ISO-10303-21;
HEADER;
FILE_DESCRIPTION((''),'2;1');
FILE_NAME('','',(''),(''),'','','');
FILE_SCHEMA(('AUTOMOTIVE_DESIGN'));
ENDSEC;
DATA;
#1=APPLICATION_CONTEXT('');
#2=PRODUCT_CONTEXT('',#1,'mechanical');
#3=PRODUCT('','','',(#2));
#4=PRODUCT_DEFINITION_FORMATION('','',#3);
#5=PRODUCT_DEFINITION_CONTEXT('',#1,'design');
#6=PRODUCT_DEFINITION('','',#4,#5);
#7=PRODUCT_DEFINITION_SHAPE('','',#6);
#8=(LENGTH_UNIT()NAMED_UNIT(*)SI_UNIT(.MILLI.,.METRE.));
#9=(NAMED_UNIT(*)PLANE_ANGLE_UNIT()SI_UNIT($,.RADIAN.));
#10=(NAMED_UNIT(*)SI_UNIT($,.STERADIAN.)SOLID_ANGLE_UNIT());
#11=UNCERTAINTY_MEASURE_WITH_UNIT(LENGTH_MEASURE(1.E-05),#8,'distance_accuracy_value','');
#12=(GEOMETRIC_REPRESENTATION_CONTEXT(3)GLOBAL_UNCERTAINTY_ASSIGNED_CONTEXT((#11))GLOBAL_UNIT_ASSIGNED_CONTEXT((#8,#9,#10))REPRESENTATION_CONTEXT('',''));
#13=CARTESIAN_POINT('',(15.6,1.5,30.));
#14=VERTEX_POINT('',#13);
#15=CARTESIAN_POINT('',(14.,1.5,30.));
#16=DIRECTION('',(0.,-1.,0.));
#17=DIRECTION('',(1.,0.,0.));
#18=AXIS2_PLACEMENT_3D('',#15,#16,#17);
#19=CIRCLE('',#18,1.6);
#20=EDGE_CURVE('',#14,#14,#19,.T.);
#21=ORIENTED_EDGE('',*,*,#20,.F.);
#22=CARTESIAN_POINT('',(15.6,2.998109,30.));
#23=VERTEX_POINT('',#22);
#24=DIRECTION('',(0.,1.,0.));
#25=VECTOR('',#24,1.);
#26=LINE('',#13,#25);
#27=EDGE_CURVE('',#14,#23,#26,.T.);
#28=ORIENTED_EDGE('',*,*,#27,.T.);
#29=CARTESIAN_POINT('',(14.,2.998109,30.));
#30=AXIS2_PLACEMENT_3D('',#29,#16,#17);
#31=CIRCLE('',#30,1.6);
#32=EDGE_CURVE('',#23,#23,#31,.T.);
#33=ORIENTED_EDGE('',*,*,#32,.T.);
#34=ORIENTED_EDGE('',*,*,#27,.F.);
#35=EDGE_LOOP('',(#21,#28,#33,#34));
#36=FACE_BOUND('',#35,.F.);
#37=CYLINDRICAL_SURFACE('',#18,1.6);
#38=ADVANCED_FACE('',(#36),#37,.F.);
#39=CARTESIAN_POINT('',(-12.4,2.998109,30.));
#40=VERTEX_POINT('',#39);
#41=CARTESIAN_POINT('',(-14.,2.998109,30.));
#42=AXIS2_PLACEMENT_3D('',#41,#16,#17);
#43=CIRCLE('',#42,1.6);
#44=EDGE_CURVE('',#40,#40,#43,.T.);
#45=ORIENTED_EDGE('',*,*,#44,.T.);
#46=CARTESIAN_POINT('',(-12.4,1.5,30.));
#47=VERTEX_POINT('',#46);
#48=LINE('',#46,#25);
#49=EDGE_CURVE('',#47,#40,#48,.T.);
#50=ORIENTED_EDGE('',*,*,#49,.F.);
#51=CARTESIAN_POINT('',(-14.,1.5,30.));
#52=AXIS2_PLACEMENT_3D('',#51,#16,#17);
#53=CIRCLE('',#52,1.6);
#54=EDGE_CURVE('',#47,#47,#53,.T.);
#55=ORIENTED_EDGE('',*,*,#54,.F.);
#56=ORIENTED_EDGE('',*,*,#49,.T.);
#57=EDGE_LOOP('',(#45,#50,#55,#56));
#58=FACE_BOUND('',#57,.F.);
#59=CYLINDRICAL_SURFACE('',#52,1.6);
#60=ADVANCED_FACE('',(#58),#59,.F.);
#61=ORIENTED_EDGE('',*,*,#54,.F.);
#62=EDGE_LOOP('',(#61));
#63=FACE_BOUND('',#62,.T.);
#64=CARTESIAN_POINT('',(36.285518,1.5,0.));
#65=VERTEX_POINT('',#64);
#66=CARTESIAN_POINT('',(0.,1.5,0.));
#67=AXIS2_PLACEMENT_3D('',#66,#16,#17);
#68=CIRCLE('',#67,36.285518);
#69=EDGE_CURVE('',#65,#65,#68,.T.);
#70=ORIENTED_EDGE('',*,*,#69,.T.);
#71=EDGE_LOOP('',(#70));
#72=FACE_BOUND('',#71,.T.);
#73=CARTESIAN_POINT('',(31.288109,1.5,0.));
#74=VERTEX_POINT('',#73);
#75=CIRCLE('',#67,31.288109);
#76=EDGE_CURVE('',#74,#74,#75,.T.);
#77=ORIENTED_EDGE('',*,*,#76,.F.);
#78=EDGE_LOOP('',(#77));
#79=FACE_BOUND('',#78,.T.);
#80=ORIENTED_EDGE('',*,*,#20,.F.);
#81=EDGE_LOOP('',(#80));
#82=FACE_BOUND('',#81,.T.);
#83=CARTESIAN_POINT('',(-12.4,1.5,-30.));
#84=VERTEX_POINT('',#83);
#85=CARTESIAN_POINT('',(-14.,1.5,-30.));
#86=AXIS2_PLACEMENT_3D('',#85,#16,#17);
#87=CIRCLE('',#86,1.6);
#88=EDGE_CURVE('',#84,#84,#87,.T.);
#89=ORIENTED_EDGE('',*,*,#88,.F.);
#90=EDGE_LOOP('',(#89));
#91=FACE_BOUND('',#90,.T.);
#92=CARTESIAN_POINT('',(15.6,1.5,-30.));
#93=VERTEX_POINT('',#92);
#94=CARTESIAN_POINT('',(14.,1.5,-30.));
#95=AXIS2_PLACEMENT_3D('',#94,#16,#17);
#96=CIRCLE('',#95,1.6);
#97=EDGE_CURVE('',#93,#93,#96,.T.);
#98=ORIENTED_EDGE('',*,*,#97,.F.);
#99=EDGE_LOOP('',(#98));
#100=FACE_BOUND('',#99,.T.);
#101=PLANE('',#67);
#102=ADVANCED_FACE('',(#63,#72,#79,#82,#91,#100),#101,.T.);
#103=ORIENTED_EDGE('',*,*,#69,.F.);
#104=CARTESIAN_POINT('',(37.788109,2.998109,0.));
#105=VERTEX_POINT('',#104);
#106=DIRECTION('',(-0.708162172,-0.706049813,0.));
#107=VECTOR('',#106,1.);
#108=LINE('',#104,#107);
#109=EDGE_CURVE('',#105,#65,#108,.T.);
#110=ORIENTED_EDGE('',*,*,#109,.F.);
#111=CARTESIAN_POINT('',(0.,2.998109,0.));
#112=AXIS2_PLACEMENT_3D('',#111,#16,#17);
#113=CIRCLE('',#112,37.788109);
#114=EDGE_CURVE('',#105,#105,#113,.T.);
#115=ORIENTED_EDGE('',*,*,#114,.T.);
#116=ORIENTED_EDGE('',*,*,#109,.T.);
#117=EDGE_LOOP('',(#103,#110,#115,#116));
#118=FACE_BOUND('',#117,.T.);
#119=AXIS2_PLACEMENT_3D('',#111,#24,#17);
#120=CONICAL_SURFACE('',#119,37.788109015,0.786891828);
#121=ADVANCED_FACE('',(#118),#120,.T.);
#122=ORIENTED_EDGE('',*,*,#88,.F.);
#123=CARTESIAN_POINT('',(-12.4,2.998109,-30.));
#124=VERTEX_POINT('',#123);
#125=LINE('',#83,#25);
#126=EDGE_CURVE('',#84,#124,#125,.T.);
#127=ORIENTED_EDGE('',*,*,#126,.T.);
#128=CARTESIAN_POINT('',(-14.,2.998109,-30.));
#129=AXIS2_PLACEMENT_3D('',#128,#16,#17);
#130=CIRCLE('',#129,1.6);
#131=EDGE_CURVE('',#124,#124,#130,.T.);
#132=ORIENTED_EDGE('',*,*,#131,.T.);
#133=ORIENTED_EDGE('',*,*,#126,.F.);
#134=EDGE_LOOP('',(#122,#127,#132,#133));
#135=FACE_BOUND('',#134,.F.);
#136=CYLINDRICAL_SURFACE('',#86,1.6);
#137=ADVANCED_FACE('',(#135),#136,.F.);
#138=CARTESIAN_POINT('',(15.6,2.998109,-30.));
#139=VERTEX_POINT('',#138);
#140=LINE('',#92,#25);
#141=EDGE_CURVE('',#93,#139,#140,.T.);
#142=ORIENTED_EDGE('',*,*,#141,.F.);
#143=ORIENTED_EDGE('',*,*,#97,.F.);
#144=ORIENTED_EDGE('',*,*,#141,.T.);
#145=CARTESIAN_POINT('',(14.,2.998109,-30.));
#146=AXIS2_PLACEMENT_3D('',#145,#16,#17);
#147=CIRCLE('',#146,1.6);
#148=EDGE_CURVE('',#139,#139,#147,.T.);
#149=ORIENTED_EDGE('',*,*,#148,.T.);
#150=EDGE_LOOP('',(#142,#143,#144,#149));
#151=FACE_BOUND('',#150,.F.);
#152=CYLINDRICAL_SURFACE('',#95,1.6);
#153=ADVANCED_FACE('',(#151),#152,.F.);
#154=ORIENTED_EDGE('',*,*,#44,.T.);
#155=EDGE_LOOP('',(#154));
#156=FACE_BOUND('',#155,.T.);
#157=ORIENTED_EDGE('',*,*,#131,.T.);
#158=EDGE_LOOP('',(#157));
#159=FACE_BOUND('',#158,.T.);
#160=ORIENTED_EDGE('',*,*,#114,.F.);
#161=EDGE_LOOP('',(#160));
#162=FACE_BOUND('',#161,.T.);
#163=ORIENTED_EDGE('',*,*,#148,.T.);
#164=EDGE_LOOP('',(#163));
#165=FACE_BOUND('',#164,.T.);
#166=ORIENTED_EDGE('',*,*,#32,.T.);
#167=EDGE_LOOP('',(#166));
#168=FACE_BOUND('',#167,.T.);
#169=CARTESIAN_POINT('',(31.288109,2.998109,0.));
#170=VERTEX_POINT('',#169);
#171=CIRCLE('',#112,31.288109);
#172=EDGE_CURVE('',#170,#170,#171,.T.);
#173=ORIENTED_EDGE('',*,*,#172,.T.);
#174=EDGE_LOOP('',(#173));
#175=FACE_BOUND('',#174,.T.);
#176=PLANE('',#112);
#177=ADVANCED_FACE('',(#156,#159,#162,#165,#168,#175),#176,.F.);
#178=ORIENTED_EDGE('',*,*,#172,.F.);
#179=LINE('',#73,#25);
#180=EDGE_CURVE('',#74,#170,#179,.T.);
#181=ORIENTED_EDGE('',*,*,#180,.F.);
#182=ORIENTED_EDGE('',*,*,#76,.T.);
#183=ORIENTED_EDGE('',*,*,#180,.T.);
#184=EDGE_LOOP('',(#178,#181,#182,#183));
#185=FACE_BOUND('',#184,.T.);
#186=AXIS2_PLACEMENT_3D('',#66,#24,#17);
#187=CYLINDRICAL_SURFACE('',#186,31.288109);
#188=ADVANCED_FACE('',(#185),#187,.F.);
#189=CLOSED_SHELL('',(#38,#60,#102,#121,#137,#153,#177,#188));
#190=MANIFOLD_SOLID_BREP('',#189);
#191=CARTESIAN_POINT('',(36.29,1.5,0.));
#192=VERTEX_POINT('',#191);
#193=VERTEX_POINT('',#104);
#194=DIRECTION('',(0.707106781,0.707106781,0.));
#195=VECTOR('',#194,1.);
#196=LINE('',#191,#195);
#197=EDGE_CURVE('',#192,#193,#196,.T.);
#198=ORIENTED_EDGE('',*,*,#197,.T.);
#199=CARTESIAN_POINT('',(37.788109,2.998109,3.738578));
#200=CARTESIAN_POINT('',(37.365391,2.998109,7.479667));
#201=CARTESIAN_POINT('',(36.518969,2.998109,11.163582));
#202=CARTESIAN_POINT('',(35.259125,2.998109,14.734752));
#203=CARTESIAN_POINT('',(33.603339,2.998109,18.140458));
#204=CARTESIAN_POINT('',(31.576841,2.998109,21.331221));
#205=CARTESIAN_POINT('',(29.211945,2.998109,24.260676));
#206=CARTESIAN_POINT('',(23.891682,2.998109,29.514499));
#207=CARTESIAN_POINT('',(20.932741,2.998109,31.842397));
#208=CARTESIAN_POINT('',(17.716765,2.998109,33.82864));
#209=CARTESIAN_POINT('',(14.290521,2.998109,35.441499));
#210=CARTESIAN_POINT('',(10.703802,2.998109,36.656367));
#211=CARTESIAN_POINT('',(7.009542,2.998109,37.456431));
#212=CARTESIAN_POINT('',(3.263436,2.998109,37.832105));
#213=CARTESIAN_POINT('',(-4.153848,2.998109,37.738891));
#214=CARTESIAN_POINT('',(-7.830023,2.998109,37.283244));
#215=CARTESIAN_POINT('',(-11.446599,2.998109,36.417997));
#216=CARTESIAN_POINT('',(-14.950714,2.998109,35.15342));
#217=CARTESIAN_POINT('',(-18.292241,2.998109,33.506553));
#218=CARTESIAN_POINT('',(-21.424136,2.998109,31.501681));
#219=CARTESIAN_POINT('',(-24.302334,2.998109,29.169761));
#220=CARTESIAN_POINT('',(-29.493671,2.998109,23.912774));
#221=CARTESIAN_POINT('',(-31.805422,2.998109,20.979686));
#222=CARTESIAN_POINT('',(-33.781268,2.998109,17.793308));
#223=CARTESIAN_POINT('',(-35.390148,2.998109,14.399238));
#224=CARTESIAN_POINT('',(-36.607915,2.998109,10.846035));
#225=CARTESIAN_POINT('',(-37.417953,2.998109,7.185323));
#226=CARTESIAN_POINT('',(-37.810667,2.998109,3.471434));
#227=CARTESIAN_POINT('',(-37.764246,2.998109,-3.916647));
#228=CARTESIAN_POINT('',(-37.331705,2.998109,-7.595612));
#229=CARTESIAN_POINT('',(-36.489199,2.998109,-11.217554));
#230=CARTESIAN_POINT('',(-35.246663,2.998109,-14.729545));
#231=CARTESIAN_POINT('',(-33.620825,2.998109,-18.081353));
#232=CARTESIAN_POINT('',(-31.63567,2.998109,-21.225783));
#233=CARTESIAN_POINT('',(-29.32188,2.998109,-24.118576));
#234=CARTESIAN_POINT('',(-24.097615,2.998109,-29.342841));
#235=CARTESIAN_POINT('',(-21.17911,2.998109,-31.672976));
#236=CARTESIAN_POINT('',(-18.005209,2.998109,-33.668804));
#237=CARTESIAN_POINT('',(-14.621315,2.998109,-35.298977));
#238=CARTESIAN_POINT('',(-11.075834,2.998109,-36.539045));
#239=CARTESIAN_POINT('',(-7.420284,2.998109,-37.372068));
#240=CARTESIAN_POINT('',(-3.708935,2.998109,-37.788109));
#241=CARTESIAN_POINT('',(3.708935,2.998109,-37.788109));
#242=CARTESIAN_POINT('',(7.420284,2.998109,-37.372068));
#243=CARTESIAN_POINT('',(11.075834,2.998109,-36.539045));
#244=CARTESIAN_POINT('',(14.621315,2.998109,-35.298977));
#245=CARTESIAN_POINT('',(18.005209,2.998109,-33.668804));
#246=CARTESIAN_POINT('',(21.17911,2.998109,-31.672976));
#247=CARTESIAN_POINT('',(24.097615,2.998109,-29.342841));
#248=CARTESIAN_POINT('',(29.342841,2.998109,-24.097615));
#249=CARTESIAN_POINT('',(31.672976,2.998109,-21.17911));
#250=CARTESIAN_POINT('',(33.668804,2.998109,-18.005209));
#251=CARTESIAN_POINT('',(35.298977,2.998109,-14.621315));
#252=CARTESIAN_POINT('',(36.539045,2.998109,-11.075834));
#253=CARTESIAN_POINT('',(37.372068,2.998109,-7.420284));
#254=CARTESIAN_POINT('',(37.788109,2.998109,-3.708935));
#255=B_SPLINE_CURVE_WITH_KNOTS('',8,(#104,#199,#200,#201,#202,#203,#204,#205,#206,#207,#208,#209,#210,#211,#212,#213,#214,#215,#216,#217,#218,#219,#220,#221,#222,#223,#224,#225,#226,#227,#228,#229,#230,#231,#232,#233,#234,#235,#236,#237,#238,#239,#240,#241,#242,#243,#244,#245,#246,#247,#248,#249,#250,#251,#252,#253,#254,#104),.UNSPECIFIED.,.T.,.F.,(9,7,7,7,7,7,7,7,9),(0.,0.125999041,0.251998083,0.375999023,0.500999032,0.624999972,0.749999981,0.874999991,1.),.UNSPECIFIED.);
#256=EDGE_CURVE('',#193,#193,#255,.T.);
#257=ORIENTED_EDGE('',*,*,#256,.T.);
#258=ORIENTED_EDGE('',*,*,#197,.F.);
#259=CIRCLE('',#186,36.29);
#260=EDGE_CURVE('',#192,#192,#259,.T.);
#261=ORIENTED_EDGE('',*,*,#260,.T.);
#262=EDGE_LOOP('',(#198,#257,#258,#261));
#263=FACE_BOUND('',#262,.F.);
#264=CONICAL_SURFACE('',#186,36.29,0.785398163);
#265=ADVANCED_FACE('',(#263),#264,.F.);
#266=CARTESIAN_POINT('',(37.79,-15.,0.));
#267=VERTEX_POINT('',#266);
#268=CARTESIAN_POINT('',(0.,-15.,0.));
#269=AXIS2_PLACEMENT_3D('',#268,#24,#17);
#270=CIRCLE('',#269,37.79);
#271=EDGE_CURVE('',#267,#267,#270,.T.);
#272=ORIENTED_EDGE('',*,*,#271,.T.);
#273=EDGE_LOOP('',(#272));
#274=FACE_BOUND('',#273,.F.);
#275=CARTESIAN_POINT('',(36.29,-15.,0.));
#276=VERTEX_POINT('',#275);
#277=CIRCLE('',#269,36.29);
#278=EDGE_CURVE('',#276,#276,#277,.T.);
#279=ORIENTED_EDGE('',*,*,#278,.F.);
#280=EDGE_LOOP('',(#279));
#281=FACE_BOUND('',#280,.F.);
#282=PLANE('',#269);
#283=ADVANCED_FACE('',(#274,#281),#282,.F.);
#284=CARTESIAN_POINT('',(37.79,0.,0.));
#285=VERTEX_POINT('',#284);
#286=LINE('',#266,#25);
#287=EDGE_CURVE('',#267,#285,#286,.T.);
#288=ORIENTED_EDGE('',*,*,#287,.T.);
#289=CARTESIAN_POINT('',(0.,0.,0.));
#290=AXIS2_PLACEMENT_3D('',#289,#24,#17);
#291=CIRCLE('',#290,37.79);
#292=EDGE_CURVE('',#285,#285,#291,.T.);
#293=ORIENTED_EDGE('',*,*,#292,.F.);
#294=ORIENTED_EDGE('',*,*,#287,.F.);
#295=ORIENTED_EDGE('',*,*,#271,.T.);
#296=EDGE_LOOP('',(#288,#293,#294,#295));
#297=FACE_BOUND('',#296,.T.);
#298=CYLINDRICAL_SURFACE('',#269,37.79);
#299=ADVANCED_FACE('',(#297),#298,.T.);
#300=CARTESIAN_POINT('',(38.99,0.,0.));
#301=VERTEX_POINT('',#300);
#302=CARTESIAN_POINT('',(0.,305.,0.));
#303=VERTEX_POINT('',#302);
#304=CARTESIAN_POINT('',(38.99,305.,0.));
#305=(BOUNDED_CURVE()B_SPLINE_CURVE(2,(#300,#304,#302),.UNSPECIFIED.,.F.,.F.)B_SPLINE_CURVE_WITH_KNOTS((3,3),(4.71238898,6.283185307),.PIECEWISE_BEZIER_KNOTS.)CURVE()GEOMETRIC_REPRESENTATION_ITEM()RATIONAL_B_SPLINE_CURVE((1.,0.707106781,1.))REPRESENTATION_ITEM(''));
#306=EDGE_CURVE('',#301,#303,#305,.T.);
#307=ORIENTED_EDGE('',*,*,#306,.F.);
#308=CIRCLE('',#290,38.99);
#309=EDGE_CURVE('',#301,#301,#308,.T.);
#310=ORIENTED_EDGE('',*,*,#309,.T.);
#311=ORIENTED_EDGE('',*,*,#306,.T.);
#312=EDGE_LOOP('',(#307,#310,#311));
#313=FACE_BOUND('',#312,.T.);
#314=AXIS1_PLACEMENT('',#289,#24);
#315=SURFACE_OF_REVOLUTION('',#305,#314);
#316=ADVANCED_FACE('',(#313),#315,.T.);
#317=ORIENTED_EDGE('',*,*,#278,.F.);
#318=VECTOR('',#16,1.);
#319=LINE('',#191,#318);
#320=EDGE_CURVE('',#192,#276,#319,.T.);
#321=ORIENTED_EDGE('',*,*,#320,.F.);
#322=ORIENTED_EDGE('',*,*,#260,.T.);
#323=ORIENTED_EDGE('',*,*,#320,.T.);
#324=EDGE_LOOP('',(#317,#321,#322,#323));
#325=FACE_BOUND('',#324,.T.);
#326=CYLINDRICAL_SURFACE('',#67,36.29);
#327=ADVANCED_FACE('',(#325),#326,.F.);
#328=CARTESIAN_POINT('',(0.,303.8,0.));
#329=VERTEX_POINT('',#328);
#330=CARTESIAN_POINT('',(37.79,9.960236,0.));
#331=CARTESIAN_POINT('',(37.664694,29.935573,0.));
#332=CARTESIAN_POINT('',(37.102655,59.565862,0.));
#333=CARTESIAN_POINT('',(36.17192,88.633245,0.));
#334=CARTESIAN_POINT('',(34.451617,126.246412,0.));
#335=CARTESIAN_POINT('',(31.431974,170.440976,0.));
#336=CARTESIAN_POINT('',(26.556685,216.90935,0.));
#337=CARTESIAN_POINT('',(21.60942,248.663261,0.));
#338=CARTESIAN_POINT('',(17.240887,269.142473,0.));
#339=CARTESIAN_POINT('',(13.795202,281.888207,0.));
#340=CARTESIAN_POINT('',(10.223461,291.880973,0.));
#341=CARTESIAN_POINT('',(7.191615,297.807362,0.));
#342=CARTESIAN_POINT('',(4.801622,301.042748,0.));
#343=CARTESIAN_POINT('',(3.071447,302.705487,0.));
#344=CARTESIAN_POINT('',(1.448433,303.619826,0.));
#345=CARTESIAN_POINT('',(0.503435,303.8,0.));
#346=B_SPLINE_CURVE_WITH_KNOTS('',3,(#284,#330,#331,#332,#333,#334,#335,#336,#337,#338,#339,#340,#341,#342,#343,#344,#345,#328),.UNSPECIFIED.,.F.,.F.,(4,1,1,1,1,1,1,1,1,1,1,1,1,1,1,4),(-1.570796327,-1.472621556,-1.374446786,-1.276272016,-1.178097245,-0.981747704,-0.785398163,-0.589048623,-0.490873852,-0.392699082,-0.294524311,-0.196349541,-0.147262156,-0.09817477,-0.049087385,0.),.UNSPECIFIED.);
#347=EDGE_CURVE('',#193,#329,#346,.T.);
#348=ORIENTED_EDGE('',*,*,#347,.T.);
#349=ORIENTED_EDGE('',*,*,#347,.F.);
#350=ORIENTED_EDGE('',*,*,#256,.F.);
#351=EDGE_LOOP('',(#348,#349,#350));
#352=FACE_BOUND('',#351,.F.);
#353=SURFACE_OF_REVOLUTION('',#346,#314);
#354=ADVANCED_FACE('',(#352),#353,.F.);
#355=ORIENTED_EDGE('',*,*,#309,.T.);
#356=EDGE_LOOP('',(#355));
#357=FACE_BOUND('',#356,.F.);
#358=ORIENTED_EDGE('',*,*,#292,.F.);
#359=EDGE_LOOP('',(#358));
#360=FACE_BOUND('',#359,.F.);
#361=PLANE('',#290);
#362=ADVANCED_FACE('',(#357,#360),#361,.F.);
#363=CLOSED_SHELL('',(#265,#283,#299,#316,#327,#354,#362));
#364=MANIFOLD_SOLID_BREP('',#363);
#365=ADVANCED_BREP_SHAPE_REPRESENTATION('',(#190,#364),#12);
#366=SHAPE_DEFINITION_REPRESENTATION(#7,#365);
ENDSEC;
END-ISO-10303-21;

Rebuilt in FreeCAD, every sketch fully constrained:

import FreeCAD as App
import Part
import Sketcher
Q = App.Units.Quantity


def add_polygon(sketch, points):
    """Adds a closed chain of lines whose ends are joined by coincident constraints."""
    first, n = sketch.GeometryCount, len(points)
    for a, b in zip(points, points[1:] + points[:1]):
        sketch.addGeometry(Part.LineSegment(App.Vector(*a, 0), App.Vector(*b, 0)), False)
    for i in range(n):
        sketch.addConstraint(Sketcher.Constraint("Coincident", first + i, 2, first + (i + 1) % n, 1))

doc = App.newDocument("Part")
body = doc.addObject("PartDesign::Body", "Body")

sketch1 = doc.addObject("Sketcher::SketchObject", "Sketch")
body.addObject(sketch1)
sketch1.AttachmentSupport = (doc.XY_Plane, [""])
sketch1.MapMode = "FlatFace"
sketch1.addGeometry(Part.BSplineCurve([App.Vector(37.79, 0, 0), App.Vector(37.79, 9.960236, 0), App.Vector(37.664694, 29.935573, 0), App.Vector(37.102655, 59.565862, 0), App.Vector(36.17192, 88.633245, 0), App.Vector(34.451617, 126.246412, 0), App.Vector(31.431974, 170.440976, 0), App.Vector(26.556685, 216.90935, 0), App.Vector(21.60942, 248.663261, 0), App.Vector(17.240887, 269.142473, 0), App.Vector(13.795202, 281.888207, 0), App.Vector(10.223461, 291.880973, 0), App.Vector(7.191615, 297.807362, 0), App.Vector(4.801622, 301.042748, 0), App.Vector(3.071447, 302.705487, 0), App.Vector(1.448433, 303.619826, 0), App.Vector(0.503435, 303.8, 0), App.Vector(0, 303.8, 0)], [4, 1, 1, 1, 1, 1, 1, 1, 1, 1, 1, 1, 1, 1, 1, 4], [-1.570796327, -1.472621556, -1.374446786, -1.276272016, -1.178097245, -0.981747704, -0.785398163, -0.589048623, -0.490873852, -0.392699082, -0.294524311, -0.196349541, -0.147262156, -0.09817477, -0.049087385, 0], False, 3, [1, 1, 1, 1, 1, 1, 1, 1, 1, 1, 1, 1, 1, 1, 1, 1, 1, 1], False), False)
sketch1.addGeometry(Part.LineSegment(App.Vector(37.79, 0, 0), App.Vector(38.99, 0, 0)), False)
sketch1.addGeometry(Part.BSplineCurve([App.Vector(38.99, 0, 0), App.Vector(38.99, 305, 0), App.Vector(0, 305, 0)], [3, 3], [4.71238898, 6.283185307], False, 2, [1, 0.707106781, 1], False), False)
sketch1.addGeometry(Part.LineSegment(App.Vector(0, 305, 0), App.Vector(0, 303.8, 0)), False)
sketch1.addConstraint(Sketcher.Constraint("Block", 0))
sketch1.addConstraint(Sketcher.Constraint("Block", 2))
sketch1.addConstraint(Sketcher.Constraint("Coincident", 0, 1, 1, 1))
sketch1.addConstraint(Sketcher.Constraint("Coincident", 1, 2, 2, 1))
sketch1.addConstraint(Sketcher.Constraint("Coincident", 2, 2, 3, 1))
sketch1.addConstraint(Sketcher.Constraint("Coincident", 3, 2, 0, 2))
revolution = doc.addObject("PartDesign::Revolution", "Revolution")
body.addObject(revolution)
revolution.Profile = sketch1
revolution.ReferenceAxis = (sketch1, ["V_Axis"])
revolution.Angle = 360

sketch2 = doc.addObject("Sketcher::SketchObject", "Sketch001")
body.addObject(sketch2)
sketch2.AttachmentSupport = (doc.XY_Plane, [""])
sketch2.MapMode = "FlatFace"
add_polygon(sketch2, [(37.8, -15), (37.8, 3), (36.3, 1.5), (36.3, -15)])
sketch2.addConstraint(Sketcher.Constraint("Vertical", 0))
sketch2.addConstraint(Sketcher.Constraint("Vertical", 2))
sketch2.addConstraint(Sketcher.Constraint("Horizontal", 3))
sketch2.addConstraint(Sketcher.Constraint("DistanceY", 0, 1, 0, 2, Q("18 mm")))
sketch2.addConstraint(Sketcher.Constraint("Angle", 1, Q("-135 deg")))
sketch2.addConstraint(Sketcher.Constraint("DistanceX", 3, 1, 3, 2, Q("1.5 mm")))
sketch2.addConstraint(Sketcher.Constraint("DistanceY", -1, 1, 0, 2, Q("3 mm")))
sketch2.addConstraint(Sketcher.Constraint("DistanceX", -1, 1, 0, 2, Q("37.79 mm")))
revolution2 = doc.addObject("PartDesign::Revolution", "Revolution001")
body.addObject(revolution2)
revolution2.Profile = sketch2
revolution2.ReferenceAxis = (sketch2, ["V_Axis"])
revolution2.Angle = 360
body2 = doc.addObject("PartDesign::Body", "Body001")

sketch3 = doc.addObject("Sketcher::SketchObject", "Sketch002")
body2.addObject(sketch3)
sketch3.AttachmentSupport = (doc.getObject("XY_Plane001"), [""])
sketch3.MapMode = "FlatFace"
add_polygon(sketch3, [(31.3, 1.5), (36.3, 1.5), (37.8, 3), (31.3, 3)])
sketch3.addConstraint(Sketcher.Constraint("Horizontal", 0))
sketch3.addConstraint(Sketcher.Constraint("Horizontal", 2))
sketch3.addConstraint(Sketcher.Constraint("Vertical", 3))
sketch3.addConstraint(Sketcher.Constraint("DistanceX", 2, 2, 2, 1, Q("6.5 mm")))
sketch3.addConstraint(Sketcher.Constraint("DistanceY", -1, 1, 0, 2, Q("1.5 mm")))
sketch3.addConstraint(Sketcher.Constraint("DistanceX", 0, 1, 0, 2, Q("4.997409 mm")))
sketch3.addConstraint(Sketcher.Constraint("DistanceY", 3, 2, 3, 1, Q("1.498109 mm")))
sketch3.addConstraint(Sketcher.Constraint("DistanceX", -1, 1, 1, 2, Q("37.788109 mm")))
revolution3 = doc.addObject("PartDesign::Revolution", "Revolution002")
body2.addObject(revolution3)
revolution3.Profile = sketch3
revolution3.ReferenceAxis = (sketch3, ["V_Axis"])
revolution3.Angle = 360

sketch4 = doc.addObject("Sketcher::SketchObject", "Sketch003")
body2.addObject(sketch4)
sketch4.AttachmentSupport = (doc.getObject("XZ_Plane001"), [""])
sketch4.MapMode = "FlatFace"
sketch4.AttachmentOffset = App.Placement(App.Vector(0, 0, -1.5), App.Rotation())
sketch4.addGeometry(Part.Circle(App.Vector(-14, 30, 0), App.Vector(0, 0, 1), 1.6), False)
sketch4.addGeometry(Part.Circle(App.Vector(14, 30, 0), App.Vector(0, 0, 1), 1.6), False)
sketch4.addGeometry(Part.Circle(App.Vector(14, -30, 0), App.Vector(0, 0, 1), 1.6), False)
sketch4.addGeometry(Part.Circle(App.Vector(-14, -30, 0), App.Vector(0, 0, 1), 1.6), False)
sketch4.addConstraint(Sketcher.Constraint("Equal", 0, 1))
sketch4.addConstraint(Sketcher.Constraint("Equal", 1, 2))
sketch4.addConstraint(Sketcher.Constraint("Equal", 2, 3))
sketch4.addConstraint(Sketcher.Constraint("Symmetric", 0, 3, 2, 3, -1, 1))
sketch4.addConstraint(Sketcher.Constraint("Symmetric", 1, 3, 3, 3, -1, 1))
sketch4.addConstraint(Sketcher.Constraint("Symmetric", 0, 3, 1, 3, -2))
sketch4.addConstraint(Sketcher.Constraint("Diameter", 0, Q("3.2 mm")))
sketch4.addConstraint(Sketcher.Constraint("DistanceX", 0, 3, -1, 1, Q("14 mm")))
sketch4.addConstraint(Sketcher.Constraint("DistanceY", -1, 1, 0, 3, Q("30 mm")))
pocket1 = doc.addObject("PartDesign::Pocket", "Pocket")
body2.addObject(pocket1)
pocket1.Profile = sketch4
pocket1.Length = 10

doc.recompute()
